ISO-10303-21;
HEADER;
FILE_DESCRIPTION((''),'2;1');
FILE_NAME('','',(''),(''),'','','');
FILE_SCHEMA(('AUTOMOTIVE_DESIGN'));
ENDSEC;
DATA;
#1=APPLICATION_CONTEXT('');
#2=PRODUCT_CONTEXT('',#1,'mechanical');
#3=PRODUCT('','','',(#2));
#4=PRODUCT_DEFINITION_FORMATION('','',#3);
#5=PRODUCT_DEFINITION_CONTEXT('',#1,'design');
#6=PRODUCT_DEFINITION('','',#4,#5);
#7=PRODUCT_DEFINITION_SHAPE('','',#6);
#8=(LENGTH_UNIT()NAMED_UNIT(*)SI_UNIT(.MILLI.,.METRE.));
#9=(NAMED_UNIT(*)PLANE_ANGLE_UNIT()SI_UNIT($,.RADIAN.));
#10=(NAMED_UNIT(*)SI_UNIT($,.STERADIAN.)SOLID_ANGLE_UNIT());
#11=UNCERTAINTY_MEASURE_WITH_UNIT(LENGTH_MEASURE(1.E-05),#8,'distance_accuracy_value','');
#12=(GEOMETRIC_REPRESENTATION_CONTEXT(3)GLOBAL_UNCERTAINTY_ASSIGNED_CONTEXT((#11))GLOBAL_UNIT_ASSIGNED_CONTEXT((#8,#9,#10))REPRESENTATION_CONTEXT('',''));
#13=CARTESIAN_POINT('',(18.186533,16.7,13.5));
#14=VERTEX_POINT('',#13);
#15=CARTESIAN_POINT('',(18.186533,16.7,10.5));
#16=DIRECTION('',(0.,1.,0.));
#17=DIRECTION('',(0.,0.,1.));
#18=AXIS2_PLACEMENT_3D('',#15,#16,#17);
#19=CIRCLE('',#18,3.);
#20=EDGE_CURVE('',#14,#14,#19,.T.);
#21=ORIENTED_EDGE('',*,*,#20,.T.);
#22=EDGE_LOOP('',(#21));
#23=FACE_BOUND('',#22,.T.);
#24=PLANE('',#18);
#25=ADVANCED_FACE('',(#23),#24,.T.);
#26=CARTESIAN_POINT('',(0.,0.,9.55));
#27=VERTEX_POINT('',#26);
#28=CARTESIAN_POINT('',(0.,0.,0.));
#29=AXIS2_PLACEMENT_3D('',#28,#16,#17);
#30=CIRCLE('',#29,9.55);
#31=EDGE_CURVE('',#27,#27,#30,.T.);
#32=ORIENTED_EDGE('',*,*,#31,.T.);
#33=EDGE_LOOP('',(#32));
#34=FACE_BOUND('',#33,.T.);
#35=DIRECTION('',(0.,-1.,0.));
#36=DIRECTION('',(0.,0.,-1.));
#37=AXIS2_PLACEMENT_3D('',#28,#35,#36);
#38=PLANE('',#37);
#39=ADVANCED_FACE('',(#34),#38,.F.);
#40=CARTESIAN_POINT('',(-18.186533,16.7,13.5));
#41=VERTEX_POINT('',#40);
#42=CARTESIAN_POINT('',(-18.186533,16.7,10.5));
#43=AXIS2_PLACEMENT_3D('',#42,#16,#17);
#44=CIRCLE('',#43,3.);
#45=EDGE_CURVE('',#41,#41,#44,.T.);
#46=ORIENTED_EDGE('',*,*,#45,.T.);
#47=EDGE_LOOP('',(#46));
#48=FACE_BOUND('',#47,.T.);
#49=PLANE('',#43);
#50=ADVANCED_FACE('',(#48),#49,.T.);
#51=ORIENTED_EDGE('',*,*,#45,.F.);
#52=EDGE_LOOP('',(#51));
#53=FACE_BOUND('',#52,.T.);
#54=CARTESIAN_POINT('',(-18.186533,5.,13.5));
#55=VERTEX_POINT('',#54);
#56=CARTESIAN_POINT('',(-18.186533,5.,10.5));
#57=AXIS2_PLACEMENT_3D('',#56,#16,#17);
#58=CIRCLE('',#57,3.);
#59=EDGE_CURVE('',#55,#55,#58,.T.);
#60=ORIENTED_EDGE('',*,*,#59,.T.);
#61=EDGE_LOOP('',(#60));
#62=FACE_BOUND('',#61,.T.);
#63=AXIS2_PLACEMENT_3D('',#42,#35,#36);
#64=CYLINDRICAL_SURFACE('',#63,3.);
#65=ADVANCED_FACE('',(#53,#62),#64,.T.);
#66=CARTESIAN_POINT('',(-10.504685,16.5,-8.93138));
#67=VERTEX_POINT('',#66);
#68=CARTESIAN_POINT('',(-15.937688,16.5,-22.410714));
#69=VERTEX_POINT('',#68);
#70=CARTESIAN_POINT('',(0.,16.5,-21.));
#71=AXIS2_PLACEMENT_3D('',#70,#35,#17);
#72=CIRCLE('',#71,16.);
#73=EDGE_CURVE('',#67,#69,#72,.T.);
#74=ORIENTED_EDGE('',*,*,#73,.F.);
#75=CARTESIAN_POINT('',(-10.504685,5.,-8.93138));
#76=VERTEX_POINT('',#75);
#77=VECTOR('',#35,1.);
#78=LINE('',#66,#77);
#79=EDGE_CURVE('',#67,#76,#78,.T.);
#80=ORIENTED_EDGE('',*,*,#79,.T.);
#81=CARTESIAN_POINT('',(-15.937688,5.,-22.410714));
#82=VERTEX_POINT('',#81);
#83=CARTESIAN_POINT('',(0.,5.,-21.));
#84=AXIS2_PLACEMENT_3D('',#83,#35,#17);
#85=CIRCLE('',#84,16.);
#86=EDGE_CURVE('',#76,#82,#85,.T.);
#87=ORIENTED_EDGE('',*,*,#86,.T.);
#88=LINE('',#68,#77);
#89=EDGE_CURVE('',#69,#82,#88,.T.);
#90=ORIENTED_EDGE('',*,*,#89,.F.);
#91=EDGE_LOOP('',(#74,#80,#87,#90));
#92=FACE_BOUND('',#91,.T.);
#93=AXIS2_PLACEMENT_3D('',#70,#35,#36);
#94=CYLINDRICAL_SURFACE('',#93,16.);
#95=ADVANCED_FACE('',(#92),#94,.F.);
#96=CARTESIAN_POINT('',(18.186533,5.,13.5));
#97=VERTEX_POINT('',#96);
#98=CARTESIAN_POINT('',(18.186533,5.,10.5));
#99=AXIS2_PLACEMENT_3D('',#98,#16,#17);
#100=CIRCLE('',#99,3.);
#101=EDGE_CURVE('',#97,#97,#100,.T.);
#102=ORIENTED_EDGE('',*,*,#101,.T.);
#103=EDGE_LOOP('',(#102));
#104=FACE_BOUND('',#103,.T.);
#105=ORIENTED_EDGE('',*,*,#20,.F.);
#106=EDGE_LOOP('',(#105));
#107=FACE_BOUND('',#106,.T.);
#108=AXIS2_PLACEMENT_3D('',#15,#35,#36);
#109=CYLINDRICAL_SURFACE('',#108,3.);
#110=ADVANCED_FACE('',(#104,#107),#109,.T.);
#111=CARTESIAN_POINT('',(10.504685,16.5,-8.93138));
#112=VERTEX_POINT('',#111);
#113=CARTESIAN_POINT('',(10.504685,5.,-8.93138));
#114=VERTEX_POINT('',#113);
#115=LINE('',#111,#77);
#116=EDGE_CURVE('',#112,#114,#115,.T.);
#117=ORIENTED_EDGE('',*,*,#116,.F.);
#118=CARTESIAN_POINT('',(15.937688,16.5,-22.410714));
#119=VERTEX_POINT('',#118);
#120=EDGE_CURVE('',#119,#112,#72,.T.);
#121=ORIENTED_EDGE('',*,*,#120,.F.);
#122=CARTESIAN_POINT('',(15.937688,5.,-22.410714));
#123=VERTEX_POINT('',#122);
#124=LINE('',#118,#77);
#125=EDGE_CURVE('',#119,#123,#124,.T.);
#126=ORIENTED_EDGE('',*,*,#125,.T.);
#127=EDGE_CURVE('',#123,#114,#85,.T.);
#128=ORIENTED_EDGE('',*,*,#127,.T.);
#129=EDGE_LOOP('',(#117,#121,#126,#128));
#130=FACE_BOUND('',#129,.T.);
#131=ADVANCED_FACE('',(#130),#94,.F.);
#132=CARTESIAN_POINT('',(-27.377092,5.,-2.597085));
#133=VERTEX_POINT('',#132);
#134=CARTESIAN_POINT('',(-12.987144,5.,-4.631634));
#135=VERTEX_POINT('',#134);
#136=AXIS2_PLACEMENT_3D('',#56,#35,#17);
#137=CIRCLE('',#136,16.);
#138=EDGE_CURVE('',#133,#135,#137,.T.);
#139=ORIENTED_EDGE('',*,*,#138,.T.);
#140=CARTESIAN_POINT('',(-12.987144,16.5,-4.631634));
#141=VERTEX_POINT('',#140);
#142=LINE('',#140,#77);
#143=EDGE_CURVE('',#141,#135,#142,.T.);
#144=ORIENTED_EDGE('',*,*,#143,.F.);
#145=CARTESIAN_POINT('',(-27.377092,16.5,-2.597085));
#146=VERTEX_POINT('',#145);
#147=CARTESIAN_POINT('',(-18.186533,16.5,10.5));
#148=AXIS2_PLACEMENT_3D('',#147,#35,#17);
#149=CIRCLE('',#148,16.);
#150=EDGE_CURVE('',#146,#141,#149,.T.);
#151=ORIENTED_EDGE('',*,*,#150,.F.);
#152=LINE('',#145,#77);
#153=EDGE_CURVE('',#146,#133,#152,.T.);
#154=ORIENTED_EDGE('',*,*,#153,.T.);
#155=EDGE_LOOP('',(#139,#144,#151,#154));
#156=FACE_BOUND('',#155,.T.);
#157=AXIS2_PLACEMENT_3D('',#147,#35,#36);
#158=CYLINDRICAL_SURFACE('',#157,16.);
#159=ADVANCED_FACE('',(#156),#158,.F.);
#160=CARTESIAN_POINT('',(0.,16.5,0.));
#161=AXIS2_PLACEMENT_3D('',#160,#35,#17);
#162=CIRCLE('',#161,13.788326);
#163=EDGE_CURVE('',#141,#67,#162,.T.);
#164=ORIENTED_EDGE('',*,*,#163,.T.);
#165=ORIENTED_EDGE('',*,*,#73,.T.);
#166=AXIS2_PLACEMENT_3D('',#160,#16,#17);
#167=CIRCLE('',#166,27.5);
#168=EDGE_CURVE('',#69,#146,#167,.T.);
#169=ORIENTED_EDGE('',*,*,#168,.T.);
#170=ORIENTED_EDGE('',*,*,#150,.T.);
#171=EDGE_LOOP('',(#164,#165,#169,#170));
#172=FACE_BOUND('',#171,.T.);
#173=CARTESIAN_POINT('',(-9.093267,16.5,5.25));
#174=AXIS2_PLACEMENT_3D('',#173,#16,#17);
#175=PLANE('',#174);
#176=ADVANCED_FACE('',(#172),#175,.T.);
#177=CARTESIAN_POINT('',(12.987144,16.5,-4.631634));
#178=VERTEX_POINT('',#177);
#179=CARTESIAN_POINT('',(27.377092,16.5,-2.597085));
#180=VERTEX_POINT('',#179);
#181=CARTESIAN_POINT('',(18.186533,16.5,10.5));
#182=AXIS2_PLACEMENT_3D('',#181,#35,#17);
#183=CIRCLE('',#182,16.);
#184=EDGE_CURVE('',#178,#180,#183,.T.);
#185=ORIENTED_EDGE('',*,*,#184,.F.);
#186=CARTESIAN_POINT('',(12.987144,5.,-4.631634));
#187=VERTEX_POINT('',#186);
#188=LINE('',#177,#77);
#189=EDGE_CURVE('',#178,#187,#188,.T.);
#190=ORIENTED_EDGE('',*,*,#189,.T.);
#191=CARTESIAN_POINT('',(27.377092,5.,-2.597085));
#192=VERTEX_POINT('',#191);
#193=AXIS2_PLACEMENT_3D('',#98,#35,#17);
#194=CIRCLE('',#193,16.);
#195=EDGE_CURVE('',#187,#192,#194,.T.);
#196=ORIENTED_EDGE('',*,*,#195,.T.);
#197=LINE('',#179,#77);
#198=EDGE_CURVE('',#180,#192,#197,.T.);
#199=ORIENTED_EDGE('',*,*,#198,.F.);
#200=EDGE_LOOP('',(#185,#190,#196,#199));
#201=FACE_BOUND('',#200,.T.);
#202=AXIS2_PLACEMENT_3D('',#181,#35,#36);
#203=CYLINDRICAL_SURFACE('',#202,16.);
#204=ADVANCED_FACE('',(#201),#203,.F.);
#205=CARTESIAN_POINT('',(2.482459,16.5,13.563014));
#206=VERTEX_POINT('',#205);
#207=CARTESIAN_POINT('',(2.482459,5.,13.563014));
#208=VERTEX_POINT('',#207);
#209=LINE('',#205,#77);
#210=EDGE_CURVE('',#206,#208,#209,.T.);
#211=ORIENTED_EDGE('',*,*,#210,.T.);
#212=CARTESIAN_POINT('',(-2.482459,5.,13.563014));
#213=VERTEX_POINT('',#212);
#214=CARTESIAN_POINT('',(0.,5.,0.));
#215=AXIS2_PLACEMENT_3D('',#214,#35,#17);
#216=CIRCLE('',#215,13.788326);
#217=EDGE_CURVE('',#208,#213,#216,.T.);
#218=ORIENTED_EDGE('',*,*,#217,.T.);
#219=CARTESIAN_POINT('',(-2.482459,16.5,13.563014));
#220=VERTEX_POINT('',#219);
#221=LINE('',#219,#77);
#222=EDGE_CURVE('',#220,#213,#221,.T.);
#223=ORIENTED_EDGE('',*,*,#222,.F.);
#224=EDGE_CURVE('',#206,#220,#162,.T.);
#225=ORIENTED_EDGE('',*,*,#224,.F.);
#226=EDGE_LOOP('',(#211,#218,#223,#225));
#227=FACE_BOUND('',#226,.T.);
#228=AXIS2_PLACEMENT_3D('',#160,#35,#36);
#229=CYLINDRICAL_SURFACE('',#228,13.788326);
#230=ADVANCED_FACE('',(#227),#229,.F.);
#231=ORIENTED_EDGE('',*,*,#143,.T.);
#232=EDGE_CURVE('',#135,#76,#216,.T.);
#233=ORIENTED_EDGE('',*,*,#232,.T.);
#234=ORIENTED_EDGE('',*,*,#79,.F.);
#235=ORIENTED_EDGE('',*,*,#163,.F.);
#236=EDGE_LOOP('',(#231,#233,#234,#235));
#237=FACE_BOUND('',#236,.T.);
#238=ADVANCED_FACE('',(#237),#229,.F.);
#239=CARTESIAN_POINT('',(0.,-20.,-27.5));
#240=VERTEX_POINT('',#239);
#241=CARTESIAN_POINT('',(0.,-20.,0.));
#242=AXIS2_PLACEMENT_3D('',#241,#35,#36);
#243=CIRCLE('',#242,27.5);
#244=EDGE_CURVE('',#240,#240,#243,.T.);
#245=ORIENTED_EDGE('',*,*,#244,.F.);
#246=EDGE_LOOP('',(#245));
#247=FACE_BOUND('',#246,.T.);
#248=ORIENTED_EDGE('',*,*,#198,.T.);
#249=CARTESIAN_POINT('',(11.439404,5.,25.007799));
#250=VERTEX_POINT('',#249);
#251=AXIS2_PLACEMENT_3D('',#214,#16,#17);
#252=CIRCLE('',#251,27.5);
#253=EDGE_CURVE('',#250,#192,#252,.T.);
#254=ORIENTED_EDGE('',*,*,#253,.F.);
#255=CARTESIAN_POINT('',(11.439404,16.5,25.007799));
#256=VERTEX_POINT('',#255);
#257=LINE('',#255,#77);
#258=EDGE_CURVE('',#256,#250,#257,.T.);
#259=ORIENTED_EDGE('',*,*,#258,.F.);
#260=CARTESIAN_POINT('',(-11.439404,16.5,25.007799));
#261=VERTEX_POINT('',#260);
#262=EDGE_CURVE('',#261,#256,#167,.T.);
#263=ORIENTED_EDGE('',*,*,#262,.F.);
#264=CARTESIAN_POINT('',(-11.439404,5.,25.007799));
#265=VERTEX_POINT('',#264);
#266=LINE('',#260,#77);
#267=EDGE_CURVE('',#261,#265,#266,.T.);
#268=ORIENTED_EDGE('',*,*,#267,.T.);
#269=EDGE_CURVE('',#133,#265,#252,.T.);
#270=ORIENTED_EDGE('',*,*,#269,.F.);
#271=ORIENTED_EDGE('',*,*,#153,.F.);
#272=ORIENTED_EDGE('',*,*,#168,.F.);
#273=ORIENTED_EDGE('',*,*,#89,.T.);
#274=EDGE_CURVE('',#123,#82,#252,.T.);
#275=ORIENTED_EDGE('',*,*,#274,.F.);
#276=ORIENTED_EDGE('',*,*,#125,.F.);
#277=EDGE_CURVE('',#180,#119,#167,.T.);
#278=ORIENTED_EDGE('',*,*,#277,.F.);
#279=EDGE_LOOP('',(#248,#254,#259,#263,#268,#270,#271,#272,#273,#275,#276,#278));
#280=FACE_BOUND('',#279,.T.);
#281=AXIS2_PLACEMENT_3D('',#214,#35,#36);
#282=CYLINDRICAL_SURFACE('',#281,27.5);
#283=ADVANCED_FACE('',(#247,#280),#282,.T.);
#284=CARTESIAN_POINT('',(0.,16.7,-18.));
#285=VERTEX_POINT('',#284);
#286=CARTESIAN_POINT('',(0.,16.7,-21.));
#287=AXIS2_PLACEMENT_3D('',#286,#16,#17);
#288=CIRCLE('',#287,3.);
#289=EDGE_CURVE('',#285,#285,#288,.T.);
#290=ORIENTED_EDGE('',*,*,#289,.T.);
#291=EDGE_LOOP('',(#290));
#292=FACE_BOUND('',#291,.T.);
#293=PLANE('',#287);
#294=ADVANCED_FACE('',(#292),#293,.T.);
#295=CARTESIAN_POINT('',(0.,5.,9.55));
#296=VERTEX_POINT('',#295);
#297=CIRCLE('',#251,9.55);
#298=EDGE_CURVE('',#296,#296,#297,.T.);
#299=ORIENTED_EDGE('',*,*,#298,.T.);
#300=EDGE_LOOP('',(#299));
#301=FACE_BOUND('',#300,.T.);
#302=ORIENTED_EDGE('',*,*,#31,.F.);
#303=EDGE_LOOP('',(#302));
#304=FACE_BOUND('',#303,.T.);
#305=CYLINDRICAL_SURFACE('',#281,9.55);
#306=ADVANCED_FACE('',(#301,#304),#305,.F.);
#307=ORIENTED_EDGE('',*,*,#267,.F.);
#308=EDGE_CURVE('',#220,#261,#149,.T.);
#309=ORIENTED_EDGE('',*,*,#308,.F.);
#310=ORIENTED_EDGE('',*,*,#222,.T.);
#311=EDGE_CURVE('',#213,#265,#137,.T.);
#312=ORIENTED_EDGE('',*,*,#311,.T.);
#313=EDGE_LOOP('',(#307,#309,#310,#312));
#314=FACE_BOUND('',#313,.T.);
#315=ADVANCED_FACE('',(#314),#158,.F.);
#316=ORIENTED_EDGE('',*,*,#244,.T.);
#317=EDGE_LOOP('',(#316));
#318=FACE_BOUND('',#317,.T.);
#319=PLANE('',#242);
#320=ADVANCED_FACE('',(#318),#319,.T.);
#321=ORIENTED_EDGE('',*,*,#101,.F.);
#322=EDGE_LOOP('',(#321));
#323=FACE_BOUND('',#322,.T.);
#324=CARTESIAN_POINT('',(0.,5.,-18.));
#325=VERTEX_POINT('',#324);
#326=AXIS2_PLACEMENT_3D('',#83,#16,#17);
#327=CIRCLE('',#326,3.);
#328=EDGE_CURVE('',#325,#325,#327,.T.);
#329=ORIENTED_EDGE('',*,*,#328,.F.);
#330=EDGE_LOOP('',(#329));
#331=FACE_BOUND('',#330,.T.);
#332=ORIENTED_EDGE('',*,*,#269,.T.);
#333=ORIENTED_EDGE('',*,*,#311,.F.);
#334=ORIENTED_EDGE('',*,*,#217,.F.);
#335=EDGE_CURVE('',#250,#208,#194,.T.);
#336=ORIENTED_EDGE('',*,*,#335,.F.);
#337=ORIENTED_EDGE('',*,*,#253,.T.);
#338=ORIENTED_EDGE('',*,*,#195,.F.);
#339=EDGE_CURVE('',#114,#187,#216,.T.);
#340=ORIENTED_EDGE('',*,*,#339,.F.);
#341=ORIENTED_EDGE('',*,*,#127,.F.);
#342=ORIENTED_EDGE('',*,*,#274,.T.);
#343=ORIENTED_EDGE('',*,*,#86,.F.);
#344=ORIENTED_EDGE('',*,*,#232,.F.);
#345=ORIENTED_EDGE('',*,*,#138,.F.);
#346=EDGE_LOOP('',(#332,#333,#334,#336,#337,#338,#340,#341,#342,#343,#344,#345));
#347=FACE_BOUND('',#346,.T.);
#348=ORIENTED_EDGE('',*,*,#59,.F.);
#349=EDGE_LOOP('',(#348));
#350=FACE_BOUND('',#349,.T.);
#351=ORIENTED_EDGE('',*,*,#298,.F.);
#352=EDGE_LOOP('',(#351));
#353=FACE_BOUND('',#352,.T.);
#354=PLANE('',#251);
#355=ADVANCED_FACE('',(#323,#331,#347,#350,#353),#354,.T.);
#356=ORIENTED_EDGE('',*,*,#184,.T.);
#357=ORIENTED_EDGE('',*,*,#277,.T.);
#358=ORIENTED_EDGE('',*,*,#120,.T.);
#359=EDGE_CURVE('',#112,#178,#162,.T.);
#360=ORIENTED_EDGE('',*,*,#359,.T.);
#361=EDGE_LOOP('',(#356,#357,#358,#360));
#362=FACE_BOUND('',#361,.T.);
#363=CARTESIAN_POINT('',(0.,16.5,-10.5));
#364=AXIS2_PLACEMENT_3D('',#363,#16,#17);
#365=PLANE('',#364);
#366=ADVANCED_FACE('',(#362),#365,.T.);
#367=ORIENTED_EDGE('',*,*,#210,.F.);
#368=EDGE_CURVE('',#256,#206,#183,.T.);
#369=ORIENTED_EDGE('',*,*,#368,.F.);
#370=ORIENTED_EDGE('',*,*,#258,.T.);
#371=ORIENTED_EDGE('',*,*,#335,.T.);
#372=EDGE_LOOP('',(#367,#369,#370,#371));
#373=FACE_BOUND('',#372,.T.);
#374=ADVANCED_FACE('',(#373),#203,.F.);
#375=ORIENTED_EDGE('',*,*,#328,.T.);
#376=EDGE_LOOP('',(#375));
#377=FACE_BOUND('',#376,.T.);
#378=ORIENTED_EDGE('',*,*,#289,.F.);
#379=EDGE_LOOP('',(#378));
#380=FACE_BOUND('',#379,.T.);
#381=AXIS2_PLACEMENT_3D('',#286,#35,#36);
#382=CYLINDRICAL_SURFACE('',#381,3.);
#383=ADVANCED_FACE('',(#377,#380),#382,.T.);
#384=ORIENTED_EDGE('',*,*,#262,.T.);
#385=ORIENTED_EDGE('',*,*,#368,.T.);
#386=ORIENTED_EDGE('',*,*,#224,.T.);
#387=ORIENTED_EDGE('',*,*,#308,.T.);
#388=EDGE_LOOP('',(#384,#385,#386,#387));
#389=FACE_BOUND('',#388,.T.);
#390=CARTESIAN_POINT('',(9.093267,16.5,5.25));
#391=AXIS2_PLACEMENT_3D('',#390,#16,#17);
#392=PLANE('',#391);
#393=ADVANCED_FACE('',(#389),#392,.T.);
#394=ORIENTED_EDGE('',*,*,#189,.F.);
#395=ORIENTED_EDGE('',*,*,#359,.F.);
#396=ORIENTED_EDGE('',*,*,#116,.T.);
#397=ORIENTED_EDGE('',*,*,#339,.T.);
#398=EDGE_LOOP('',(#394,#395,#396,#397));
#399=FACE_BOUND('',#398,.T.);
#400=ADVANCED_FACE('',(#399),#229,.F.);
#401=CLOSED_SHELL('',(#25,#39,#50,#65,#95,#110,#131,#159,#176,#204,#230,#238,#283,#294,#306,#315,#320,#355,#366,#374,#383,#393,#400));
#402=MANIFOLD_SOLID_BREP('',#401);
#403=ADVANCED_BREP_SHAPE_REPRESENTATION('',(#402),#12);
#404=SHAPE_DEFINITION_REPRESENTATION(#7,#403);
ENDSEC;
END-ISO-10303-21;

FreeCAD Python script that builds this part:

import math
import FreeCAD as App
import Part
import Sketcher

V = App.Vector
Q = App.Units.Quantity

doc = App.newDocument("Part")
body = doc.addObject("PartDesign::Body", "Body")

# Sketch on XZ plane
sketch1 = doc.addObject("Sketcher::SketchObject", "Sketch")
body.addObject(sketch1)
sketch1.AttachmentSupport = (doc.XZ_Plane, [""])
sketch1.MapMode = "FlatFace"
sketch1.addGeometry(Part.Circle(V(0, 0, 0), V(0, 0, 1), 28), False)
sketch1.addGeometry(Part.Circle(V(0, 0, 0), V(0, 0, 1), 10), False)
sketch1.addConstraint(Sketcher.Constraint("Coincident", 0, 3, -1, 1))
sketch1.addConstraint(Sketcher.Constraint("Coincident", 1, 3, -1, 1))
sketch1.addConstraint(Sketcher.Constraint("Diameter", 0, Q("55 mm")))
sketch1.addConstraint(Sketcher.Constraint("Diameter", 1, Q("19.1 mm")))
pad1 = doc.addObject("PartDesign::Pad", "Pad")
body.addObject(pad1)
pad1.Profile = sketch1
pad1.Length = 5
pad1.Reversed = True

# Sketch on XZ plane
sketch2 = doc.addObject("Sketcher::SketchObject", "Sketch001")
body.addObject(sketch2)
sketch2.AttachmentSupport = (doc.XZ_Plane, [""])
sketch2.MapMode = "FlatFace"
sketch2.AttachmentOffset = App.Placement(V(0, 0, -5), App.Rotation())
sketch2.addGeometry(Part.Circle(V(0, -21, 0), V(0, 0, 1), 3), False)
sketch2.addGeometry(Part.Circle(V(18.2, 10.5, 0), V(0, 0, 1), 3), False)
sketch2.addGeometry(Part.Circle(V(-18.2, 10.5, 0), V(0, 0, 1), 3), False)
sketch2.addConstraint(Sketcher.Constraint("Equal", 0, 1))
sketch2.addConstraint(Sketcher.Constraint("Equal", 1, 2))
sketch2.addConstraint(Sketcher.Constraint("Symmetric", 1, 3, 2, 3, -2))
sketch2.addConstraint(Sketcher.Constraint("PointOnObject", 0, 3, -2))
sketch2.addConstraint(Sketcher.Constraint("Diameter", 0, Q("6 mm")))
sketch2.addConstraint(Sketcher.Constraint("DistanceY", 0, 3, -1, 1, Q("21 mm")))
sketch2.addConstraint(Sketcher.Constraint("DistanceY", -1, 1, 1, 3, Q("10.5 mm")))
sketch2.addConstraint(Sketcher.Constraint("DistanceX", -1, 1, 1, 3, Q("18.186533 mm")))
pad2 = doc.addObject("PartDesign::Pad", "Pad001")
body.addObject(pad2)
pad2.Profile = sketch2
pad2.Length = 11.7
pad2.Reversed = True

# Sketch on XZ plane
sketch3 = doc.addObject("Sketcher::SketchObject", "Sketch002")
body.addObject(sketch3)
sketch3.AttachmentSupport = (doc.XZ_Plane, [""])
sketch3.MapMode = "FlatFace"
sketch3.AttachmentOffset = App.Placement(V(0, 0, -5), App.Rotation())
sketch3.addGeometry(Part.ArcOfCircle(Part.Circle(V(0, -21, 0), V(0, 0, 1), 16), math.radians(131), math.radians(185)), False)
sketch3.addGeometry(Part.ArcOfCircle(Part.Circle(V(0, 0, 0), V(0, 0, 1), 27.5), math.radians(-175), math.radians(-125)), False)
sketch3.addGeometry(Part.ArcOfCircle(Part.Circle(V(-18.2, 10.5, 0), V(0, 0, 1), 16), math.radians(-125), math.radians(-71)), False)
sketch3.addGeometry(Part.ArcOfCircle(Part.Circle(V(0, 0, 0), V(0, 0, 1), 13.8), math.radians(-160), math.radians(-140)), False)
sketch3.addGeometry(Part.ArcOfCircle(Part.Circle(V(18.2, 10.5, 0), V(0, 0, 1), 16), math.radians(115), math.radians(169)), False)
sketch3.addGeometry(Part.ArcOfCircle(Part.Circle(V(0, 0, 0), V(0, 0, 1), 13.8), math.radians(80), math.radians(100)), False)
sketch3.addGeometry(Part.ArcOfCircle(Part.Circle(V(-18.2, 10.5, 0), V(0, 0, 1), 16), math.radians(11), math.radians(65)), False)
sketch3.addGeometry(Part.ArcOfCircle(Part.Circle(V(0, 0, 0), V(0, 0, 1), 27.5), math.radians(65), math.radians(115)), False)
sketch3.addGeometry(Part.ArcOfCircle(Part.Circle(V(0, -21, 0), V(0, 0, 1), 16), math.radians(-5), math.radians(49)), False)
sketch3.addGeometry(Part.ArcOfCircle(Part.Circle(V(0, 0, 0), V(0, 0, 1), 13.8), math.radians(-40), math.radians(-20)), False)
sketch3.addGeometry(Part.ArcOfCircle(Part.Circle(V(18.2, 10.5, 0), V(0, 0, 1), 16), math.radians(-109), math.radians(-55)), False)
sketch3.addGeometry(Part.ArcOfCircle(Part.Circle(V(0, 0, 0), V(0, 0, 1), 27.5), math.radians(-55), math.radians(-5)), False)
sketch3.addConstraint(Sketcher.Constraint("Coincident", 0, 2, 1, 2))
sketch3.addConstraint(Sketcher.Constraint("Coincident", 1, 1, 2, 1))
sketch3.addConstraint(Sketcher.Constraint("Coincident", 2, 2, 3, 1))
sketch3.addConstraint(Sketcher.Constraint("Coincident", 3, 2, 0, 1))
sketch3.addConstraint(Sketcher.Constraint("Coincident", 4, 2, 5, 1))
sketch3.addConstraint(Sketcher.Constraint("Coincident", 5, 2, 6, 1))
sketch3.addConstraint(Sketcher.Constraint("Coincident", 6, 2, 7, 2))
sketch3.addConstraint(Sketcher.Constraint("Coincident", 7, 1, 4, 1))
sketch3.addConstraint(Sketcher.Constraint("Coincident", 8, 2, 9, 1))
sketch3.addConstraint(Sketcher.Constraint("Coincident", 9, 2, 10, 1))
sketch3.addConstraint(Sketcher.Constraint("Coincident", 10, 2, 11, 2))
sketch3.addConstraint(Sketcher.Constraint("Coincident", 11, 1, 8, 1))
sketch3.addConstraint(Sketcher.Constraint("Coincident", 1, 3, -1, 1))
sketch3.addConstraint(Sketcher.Constraint("Coincident", 3, 3, -1, 1))
sketch3.addConstraint(Sketcher.Constraint("Coincident", 5, 3, -1, 1))
sketch3.addConstraint(Sketcher.Constraint("Coincident", 7, 3, -1, 1))
sketch3.addConstraint(Sketcher.Constraint("Coincident", 9, 3, -1, 1))
sketch3.addConstraint(Sketcher.Constraint("Coincident", 11, 3, -1, 1))
sketch3.addConstraint(Sketcher.Constraint("Coincident", 6, 3, 2, 3))
sketch3.addConstraint(Sketcher.Constraint("Coincident", 8, 3, 0, 3))
sketch3.addConstraint(Sketcher.Constraint("Coincident", 10, 3, 4, 3))
sketch3.addConstraint(Sketcher.Constraint("Equal", 0, 2))
sketch3.addConstraint(Sketcher.Constraint("Equal", 2, 4))
sketch3.addConstraint(Sketcher.Constraint("Equal", 3, 5))
sketch3.addConstraint(Sketcher.Constraint("Equal", 4, 6))
sketch3.addConstraint(Sketcher.Constraint("Equal", 1, 7))
sketch3.addConstraint(Sketcher.Constraint("Equal", 6, 8))
sketch3.addConstraint(Sketcher.Constraint("Equal", 5, 9))
sketch3.addConstraint(Sketcher.Constraint("Equal", 8, 10))
sketch3.addConstraint(Sketcher.Constraint("Equal", 7, 11))
sketch3.addConstraint(Sketcher.Constraint("Symmetric", 2, 3, 4, 3, -2))
sketch3.addConstraint(Sketcher.Constraint("PointOnObject", 0, 3, -2))
sketch3.addConstraint(Sketcher.Constraint("Radius", 0, Q("16 mm")))
sketch3.addConstraint(Sketcher.Constraint("Radius", 1, Q("27.5 mm")))
sketch3.addConstraint(Sketcher.Constraint("DistanceY", 0, 3, -1, 1, Q("21 mm")))
sketch3.addConstraint(Sketcher.Constraint("DistanceY", -1, 1, 2, 3, Q("10.5 mm")))
sketch3.addConstraint(Sketcher.Constraint("Radius", 3, Q("13.788326 mm")))
sketch3.addConstraint(Sketcher.Constraint("DistanceY", -1, 1, 6, 2, Q("25.007799 mm")))
pad3 = doc.addObject("PartDesign::Pad", "Pad002")
body.addObject(pad3)
pad3.Profile = sketch3
pad3.Length = 11.5
pad3.Reversed = True

# Sketch on XZ plane
sketch4 = doc.addObject("Sketcher::SketchObject", "Sketch003")
body.addObject(sketch4)
sketch4.AttachmentSupport = (doc.XZ_Plane, [""])
sketch4.MapMode = "FlatFace"
sketch4.addGeometry(Part.Circle(V(0, 0, 0), V(0, 0, 1), 28), False)
sketch4.addConstraint(Sketcher.Constraint("Coincident", 0, 3, -1, 1))
sketch4.addConstraint(Sketcher.Constraint("Diameter", 0, Q("55 mm")))
pad4 = doc.addObject("PartDesign::Pad", "Pad003")
body.addObject(pad4)
pad4.Profile = sketch4
pad4.Length = 20

doc.recompute()
